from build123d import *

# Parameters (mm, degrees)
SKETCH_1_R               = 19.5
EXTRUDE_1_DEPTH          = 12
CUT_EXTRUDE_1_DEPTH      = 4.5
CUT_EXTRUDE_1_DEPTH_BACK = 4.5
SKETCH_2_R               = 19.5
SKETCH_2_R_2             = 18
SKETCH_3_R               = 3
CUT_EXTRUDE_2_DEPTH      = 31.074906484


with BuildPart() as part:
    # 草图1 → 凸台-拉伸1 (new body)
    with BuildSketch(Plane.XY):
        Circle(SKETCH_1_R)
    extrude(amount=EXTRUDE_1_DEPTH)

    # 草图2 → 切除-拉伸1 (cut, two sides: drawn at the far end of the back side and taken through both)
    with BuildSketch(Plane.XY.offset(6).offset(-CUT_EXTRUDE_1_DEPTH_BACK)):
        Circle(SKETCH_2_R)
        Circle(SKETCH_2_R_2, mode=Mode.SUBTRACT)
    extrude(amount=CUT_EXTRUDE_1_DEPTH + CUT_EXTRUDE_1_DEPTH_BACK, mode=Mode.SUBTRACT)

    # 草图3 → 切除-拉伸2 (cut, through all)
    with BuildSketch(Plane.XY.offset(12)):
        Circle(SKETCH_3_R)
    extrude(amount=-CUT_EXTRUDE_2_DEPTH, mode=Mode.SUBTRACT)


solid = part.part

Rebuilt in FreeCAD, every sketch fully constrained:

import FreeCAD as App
import Part
import Sketcher
from FreeCAD import Vector
Q = App.Units.Quantity

doc = App.newDocument("Part")
body = doc.addObject("PartDesign::Body", "Body")

sketch1 = body.newObject("Sketcher::SketchObject", "Sketch")
sketch1.AttachmentSupport = (doc.getObject("XY_Plane"), [""])
sketch1.MapMode = "FlatFace"
sketch1.addGeometry(Part.Circle(Vector(0, 0, 0), Vector(0, 0, 1), 20), False)
sketch1.addConstraint([
    Sketcher.Constraint("Coincident", 0, 3, -1, 1),
    Sketcher.Constraint("Diameter", 0, Q("39 mm")),
])
pad1 = body.newObject("PartDesign::Pad", "Pad")
pad1.Profile = sketch1
pad1.Length = 12

sketch2 = body.newObject("Sketcher::SketchObject", "Sketch001")
sketch2.AttachmentSupport = (doc.getObject("XY_Plane"), [""])
sketch2.MapMode = "FlatFace"
sketch2.AttachmentOffset = App.Placement(Vector(0, 0, 6), App.Rotation())
sketch2.addGeometry([
    Part.Circle(Vector(0, 0, 0), Vector(0, 0, 1), 20),
    Part.Circle(Vector(0, 0, 0), Vector(0, 0, 1), 18),
], False)
sketch2.addConstraint([
    Sketcher.Constraint("Coincident", 0, 3, -1, 1),
    Sketcher.Constraint("Coincident", 1, 3, -1, 1),
    Sketcher.Constraint("Diameter", 0, Q("39 mm")),
    Sketcher.Constraint("Diameter", 1, Q("36 mm")),
])
pocket1 = body.newObject("PartDesign::Pocket", "Pocket")
pocket1.Profile = sketch2
pocket1.Type = "TwoLengths"
pocket1.Length = 4.5
pocket1.Length2 = 4.5
pocket1.Reversed = True

sketch3 = body.newObject("Sketcher::SketchObject", "Sketch002")
sketch3.AttachmentSupport = (doc.getObject("XY_Plane"), [""])
sketch3.MapMode = "FlatFace"
sketch3.AttachmentOffset = App.Placement(Vector(0, 0, 12), App.Rotation())
sketch3.addGeometry(Part.Circle(Vector(0, 0, 0), Vector(0, 0, 1), 3), False)
sketch3.addConstraint([
    Sketcher.Constraint("Coincident", 0, 3, -1, 1),
    Sketcher.Constraint("Diameter", 0, Q("6 mm")),
])
pocket2 = body.newObject("PartDesign::Pocket", "Pocket001")
pocket2.Profile = sketch3
pocket2.Type = "ThroughAll"

doc.recompute()
